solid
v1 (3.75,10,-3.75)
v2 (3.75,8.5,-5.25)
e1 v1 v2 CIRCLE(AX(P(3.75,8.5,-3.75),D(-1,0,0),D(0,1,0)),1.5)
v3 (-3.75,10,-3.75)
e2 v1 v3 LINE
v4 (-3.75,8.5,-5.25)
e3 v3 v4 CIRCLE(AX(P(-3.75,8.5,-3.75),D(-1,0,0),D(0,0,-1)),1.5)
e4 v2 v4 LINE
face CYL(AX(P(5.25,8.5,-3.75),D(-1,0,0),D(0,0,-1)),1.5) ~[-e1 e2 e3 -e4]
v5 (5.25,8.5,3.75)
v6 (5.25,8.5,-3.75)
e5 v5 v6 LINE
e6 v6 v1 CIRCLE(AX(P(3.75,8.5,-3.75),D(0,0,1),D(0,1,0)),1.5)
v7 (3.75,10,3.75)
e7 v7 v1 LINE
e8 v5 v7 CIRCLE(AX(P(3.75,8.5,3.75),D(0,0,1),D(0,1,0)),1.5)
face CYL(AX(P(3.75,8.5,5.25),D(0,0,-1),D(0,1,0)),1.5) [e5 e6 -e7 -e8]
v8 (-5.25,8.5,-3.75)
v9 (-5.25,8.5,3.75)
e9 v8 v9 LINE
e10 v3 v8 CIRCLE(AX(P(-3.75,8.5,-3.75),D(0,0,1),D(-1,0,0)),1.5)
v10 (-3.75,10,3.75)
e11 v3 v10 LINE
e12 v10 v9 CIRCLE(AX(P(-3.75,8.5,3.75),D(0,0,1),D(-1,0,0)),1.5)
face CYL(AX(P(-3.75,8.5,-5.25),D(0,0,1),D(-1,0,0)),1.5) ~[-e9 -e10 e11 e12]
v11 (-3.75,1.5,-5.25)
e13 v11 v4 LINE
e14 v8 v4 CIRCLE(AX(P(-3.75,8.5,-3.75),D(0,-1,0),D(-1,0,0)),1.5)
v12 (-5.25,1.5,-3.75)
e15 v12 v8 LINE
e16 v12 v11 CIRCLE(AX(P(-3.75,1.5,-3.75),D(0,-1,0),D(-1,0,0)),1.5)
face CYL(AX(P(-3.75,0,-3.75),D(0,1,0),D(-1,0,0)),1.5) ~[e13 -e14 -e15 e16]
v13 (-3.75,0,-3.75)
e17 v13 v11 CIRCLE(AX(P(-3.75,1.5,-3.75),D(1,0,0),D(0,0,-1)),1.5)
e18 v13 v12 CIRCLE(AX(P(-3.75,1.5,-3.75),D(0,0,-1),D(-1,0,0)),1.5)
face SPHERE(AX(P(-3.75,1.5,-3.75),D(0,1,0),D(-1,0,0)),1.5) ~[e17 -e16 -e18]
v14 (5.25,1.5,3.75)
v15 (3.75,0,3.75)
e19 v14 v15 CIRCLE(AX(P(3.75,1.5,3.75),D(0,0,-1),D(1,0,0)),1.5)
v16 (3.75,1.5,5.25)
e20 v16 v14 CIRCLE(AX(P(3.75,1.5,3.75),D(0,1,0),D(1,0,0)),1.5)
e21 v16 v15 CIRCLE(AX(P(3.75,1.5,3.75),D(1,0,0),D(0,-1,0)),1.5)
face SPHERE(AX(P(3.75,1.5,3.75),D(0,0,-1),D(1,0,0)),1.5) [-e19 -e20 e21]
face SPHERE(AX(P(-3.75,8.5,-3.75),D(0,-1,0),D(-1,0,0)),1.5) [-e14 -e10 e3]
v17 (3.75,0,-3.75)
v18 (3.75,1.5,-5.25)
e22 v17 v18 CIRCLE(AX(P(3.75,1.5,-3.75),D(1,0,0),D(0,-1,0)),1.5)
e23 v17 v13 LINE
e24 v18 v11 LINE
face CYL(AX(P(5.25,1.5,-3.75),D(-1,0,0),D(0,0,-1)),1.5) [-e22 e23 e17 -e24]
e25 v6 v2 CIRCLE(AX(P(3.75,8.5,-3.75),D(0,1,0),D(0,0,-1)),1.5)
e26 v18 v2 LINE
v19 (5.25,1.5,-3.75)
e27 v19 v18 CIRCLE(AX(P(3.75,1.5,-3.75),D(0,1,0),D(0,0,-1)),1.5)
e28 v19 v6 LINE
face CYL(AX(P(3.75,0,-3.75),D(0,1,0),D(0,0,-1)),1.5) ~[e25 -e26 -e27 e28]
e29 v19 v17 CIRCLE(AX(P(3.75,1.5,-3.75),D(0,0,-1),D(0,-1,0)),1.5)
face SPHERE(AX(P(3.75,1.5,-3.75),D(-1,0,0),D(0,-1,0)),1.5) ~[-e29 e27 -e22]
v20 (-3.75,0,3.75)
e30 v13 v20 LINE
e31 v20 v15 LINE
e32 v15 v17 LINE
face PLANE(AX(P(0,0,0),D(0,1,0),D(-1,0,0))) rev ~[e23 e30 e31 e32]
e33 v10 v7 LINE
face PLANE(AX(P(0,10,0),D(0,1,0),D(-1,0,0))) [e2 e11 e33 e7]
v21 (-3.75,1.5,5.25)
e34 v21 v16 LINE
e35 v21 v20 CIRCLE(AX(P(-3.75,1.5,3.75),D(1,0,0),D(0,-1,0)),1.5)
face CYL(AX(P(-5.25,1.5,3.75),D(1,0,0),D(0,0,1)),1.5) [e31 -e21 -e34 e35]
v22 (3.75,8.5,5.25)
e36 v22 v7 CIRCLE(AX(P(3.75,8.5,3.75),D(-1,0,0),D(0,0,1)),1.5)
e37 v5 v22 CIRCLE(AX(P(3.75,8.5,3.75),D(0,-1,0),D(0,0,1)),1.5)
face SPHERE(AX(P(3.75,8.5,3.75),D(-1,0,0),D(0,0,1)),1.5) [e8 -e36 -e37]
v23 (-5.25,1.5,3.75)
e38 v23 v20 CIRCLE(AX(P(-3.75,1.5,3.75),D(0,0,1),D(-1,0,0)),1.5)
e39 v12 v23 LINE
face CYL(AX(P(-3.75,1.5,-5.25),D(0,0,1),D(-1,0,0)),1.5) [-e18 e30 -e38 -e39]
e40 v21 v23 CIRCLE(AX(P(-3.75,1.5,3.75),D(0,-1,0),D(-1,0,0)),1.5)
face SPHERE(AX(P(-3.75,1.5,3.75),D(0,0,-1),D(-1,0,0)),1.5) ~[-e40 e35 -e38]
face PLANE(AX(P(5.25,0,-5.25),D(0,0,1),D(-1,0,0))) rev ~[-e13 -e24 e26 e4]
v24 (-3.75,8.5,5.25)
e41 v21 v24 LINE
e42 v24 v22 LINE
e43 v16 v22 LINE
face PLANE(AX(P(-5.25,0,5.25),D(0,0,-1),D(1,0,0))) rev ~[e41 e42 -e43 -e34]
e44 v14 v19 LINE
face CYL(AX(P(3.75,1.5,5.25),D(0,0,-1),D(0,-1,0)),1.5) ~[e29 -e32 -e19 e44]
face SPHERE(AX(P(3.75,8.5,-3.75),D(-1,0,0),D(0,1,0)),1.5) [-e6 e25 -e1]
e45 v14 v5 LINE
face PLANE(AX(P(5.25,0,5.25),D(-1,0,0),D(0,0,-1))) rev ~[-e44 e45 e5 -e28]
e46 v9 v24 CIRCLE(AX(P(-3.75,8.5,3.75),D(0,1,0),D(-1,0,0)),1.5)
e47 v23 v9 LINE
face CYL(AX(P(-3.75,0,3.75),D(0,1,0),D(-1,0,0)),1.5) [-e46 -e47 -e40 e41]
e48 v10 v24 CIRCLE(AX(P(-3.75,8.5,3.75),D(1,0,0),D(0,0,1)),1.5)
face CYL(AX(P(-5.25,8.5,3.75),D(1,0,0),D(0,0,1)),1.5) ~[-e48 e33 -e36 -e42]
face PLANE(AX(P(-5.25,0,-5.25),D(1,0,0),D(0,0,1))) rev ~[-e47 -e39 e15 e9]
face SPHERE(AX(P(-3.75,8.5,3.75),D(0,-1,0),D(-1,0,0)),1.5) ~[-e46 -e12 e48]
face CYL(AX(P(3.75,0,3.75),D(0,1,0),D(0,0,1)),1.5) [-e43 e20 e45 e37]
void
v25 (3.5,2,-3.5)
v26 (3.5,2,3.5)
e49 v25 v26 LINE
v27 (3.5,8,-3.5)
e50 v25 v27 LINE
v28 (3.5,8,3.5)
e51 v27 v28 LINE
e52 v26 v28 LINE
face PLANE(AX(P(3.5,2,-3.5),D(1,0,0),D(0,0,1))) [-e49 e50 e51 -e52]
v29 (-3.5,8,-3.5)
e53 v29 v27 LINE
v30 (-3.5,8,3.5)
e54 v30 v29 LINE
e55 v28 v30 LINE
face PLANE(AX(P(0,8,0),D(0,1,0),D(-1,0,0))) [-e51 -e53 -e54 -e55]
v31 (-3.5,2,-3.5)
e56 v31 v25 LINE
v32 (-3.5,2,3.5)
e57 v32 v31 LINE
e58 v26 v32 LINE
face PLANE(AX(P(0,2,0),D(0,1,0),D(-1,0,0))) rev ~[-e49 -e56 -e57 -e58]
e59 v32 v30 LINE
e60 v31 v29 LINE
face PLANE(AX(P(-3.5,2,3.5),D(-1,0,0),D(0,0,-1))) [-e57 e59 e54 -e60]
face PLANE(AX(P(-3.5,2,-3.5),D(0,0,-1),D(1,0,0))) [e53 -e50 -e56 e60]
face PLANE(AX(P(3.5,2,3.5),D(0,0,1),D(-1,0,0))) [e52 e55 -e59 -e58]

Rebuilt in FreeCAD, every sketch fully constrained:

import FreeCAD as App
import Part
import Sketcher
Q = App.Units.Quantity


def edges_at(feature, points):
    """Names of the edges that pass closest to the given points."""
    edges = feature.Shape.Edges
    near = lambda p: min(range(len(edges)), key=lambda i: edges[i].distToShape(Part.Vertex(*p))[0])
    return sorted({f"Edge{near(p) + 1}" for p in points})


def add_polygon(sketch, points):
    """Adds a closed chain of lines whose ends are joined by coincident constraints."""
    first, n = sketch.GeometryCount, len(points)
    for a, b in zip(points, points[1:] + points[:1]):
        sketch.addGeometry(Part.LineSegment(App.Vector(*a, 0), App.Vector(*b, 0)), False)
    for i in range(n):
        sketch.addConstraint(Sketcher.Constraint("Coincident", first + i, 2, first + (i + 1) % n, 1))

doc = App.newDocument("Part")
params = doc.addObject("Spreadsheet::Sheet", "Params")
for row, (alias, value) in enumerate([
    ("sketch1_width", "10.5 mm"),
    ("pad1_length", "10 mm"),
    ("sketch2_width", "7 mm"),
    ("pocket1_length", "6 mm"),
    ("fillet_radius", "1.5 mm"),
], start=1):
    params.set(f"A{row}", alias)
    params.set(f"B{row}", "=" + value)
    params.setAlias(f"B{row}", alias)

body = doc.addObject("PartDesign::Body", "Body")

sketch1 = doc.addObject("Sketcher::SketchObject", "Sketch")
body.addObject(sketch1)
sketch1.AttachmentSupport = (doc.XZ_Plane, [""])
sketch1.MapMode = "FlatFace"
add_polygon(sketch1, [(-5.25, -5.25), (-5.25, 5.25), (5.25, 5.25), (5.25, -5.25)])
sketch1.addConstraint(Sketcher.Constraint("Vertical", 0))
sketch1.addConstraint(Sketcher.Constraint("Horizontal", 1))
sketch1.addConstraint(Sketcher.Constraint("Vertical", 2))
sketch1.addConstraint(Sketcher.Constraint("Horizontal", 3))
sketch1.addConstraint(Sketcher.Constraint("Symmetric", 0, 2, 2, 2, -1, 1))
sketch1.addConstraint(Sketcher.Constraint("Equal", 3, 0))
sketch1.addConstraint(Sketcher.Constraint("DistanceX", 1, 1, 1, 2, Q("10.5 mm")))
sketch1.setExpression("Constraints[10]", "Params.sketch1_width")
pad1 = doc.addObject("PartDesign::Pad", "Pad")
body.addObject(pad1)
pad1.Profile = sketch1
pad1.setExpression("Length", "Params.pad1_length")
pad1.Reversed = True

sketch2 = doc.addObject("Sketcher::SketchObject", "Sketch001")
body.addObject(sketch2)
sketch2.AttachmentSupport = (doc.XZ_Plane, [""])
sketch2.MapMode = "FlatFace"
sketch2.AttachmentOffset = App.Placement(App.Vector(0, 0, -2), App.Rotation())
add_polygon(sketch2, [(3.5, -3.5), (-3.5, -3.5), (-3.5, 3.5), (3.5, 3.5)])
sketch2.addConstraint(Sketcher.Constraint("Horizontal", 0))
sketch2.addConstraint(Sketcher.Constraint("Vertical", 1))
sketch2.addConstraint(Sketcher.Constraint("Horizontal", 2))
sketch2.addConstraint(Sketcher.Constraint("Vertical", 3))
sketch2.addConstraint(Sketcher.Constraint("Symmetric", 0, 2, 2, 2, -1, 1))
sketch2.addConstraint(Sketcher.Constraint("Equal", 2, 1))
sketch2.addConstraint(Sketcher.Constraint("DistanceX", 0, 2, 0, 1, Q("7 mm")))
sketch2.setExpression("Constraints[10]", "Params.sketch2_width")
pocket1 = doc.addObject("PartDesign::Pocket", "Pocket")
body.addObject(pocket1)
pocket1.Profile = sketch2
pocket1.setExpression("Length", "Params.pocket1_length")
doc.recompute()

fillet = doc.addObject("PartDesign::Fillet", "Fillet")
body.addObject(fillet)
fillet.Base = (pocket1, edges_at(pocket1, [
    (-5.25, 5, -5.25),
    (-5.25, 0, 0),
    (0, 0, -5.25),
    (-5.25, 5, 5.25),
    (-5.25, 10, 0),
    (0, 10, -5.25),
    (0, 10, 5.25),
    (5.25, 0, 0),
    (5.25, 5, 5.25),
    (5.25, 10, 0),
    (5.25, 5, -5.25),
    (0, 0, 5.25),
]))
fillet.setExpression("Radius", "Params.fillet_radius")

doc.recompute()
